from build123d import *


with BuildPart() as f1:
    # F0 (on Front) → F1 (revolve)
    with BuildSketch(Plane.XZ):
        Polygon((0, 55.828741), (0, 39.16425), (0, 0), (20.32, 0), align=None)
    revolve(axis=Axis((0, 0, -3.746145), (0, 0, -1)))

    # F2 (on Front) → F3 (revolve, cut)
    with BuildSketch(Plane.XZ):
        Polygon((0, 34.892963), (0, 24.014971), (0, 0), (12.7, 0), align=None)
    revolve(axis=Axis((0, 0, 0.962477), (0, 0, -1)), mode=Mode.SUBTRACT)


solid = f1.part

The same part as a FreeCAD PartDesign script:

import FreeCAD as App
import Part
import Sketcher
from FreeCAD import Vector
Q = App.Units.Quantity


def add_polygon(sketch, points):
    """Adds a closed chain of lines whose ends are joined by coincident constraints."""
    first, n = sketch.GeometryCount, len(points)
    for a, b in zip(points, points[1:] + points[:1]):
        sketch.addGeometry(Part.LineSegment(App.Vector(*a, 0), App.Vector(*b, 0)), False)
    for i in range(n):
        sketch.addConstraint(Sketcher.Constraint("Coincident", first + i, 2, first + (i + 1) % n, 1))

doc = App.newDocument("Part")
body = doc.addObject("PartDesign::Body", "Body")

sketch1 = doc.addObject("Sketcher::SketchObject", "Sketch")
body.addObject(sketch1)
sketch1.AttachmentSupport = (doc.XZ_Plane, [""])
sketch1.MapMode = "FlatFace"
add_polygon(sketch1, [(0, 55.828741), (0, 0), (20.32, 0)])
sketch1.addConstraint(Sketcher.Constraint("Vertical", 0))
sketch1.addConstraint(Sketcher.Constraint("Horizontal", 1))
sketch1.addConstraint(Sketcher.Constraint("Coincident", 0, 2, -1, 1))
sketch1.addConstraint(Sketcher.Constraint("DistanceX", 1, 1, 1, 2, Q("0.8 in")))
sketch1.addConstraint(Sketcher.Constraint("Angle", 2, Q("110 deg")))
revolution = doc.addObject("PartDesign::Revolution", "Revolution")
body.addObject(revolution)
revolution.Profile = sketch1
revolution.ReferenceAxis = (sketch1, ["V_Axis"])
revolution.Angle = 360

sketch2 = doc.addObject("Sketcher::SketchObject", "Sketch001")
body.addObject(sketch2)
sketch2.AttachmentSupport = (doc.XZ_Plane, [""])
sketch2.MapMode = "FlatFace"
add_polygon(sketch2, [(0, 34.892963), (0, 0), (12.7, 0)])
sketch2.addConstraint(Sketcher.Constraint("Vertical", 0))
sketch2.addConstraint(Sketcher.Constraint("Horizontal", 1))
sketch2.addConstraint(Sketcher.Constraint("Coincident", 0, 2, -1, 1))
sketch2.addConstraint(Sketcher.Constraint("DistanceX", 1, 1, 1, 2, Q("0.5 in")))
sketch2.addConstraint(Sketcher.Constraint("Angle", 2, Q("110 deg")))
groove = doc.addObject("PartDesign::Groove", "Groove")
body.addObject(groove)
groove.Profile = sketch2
groove.ReferenceAxis = (sketch2, ["V_Axis"])
groove.Angle = 360

doc.recompute()
